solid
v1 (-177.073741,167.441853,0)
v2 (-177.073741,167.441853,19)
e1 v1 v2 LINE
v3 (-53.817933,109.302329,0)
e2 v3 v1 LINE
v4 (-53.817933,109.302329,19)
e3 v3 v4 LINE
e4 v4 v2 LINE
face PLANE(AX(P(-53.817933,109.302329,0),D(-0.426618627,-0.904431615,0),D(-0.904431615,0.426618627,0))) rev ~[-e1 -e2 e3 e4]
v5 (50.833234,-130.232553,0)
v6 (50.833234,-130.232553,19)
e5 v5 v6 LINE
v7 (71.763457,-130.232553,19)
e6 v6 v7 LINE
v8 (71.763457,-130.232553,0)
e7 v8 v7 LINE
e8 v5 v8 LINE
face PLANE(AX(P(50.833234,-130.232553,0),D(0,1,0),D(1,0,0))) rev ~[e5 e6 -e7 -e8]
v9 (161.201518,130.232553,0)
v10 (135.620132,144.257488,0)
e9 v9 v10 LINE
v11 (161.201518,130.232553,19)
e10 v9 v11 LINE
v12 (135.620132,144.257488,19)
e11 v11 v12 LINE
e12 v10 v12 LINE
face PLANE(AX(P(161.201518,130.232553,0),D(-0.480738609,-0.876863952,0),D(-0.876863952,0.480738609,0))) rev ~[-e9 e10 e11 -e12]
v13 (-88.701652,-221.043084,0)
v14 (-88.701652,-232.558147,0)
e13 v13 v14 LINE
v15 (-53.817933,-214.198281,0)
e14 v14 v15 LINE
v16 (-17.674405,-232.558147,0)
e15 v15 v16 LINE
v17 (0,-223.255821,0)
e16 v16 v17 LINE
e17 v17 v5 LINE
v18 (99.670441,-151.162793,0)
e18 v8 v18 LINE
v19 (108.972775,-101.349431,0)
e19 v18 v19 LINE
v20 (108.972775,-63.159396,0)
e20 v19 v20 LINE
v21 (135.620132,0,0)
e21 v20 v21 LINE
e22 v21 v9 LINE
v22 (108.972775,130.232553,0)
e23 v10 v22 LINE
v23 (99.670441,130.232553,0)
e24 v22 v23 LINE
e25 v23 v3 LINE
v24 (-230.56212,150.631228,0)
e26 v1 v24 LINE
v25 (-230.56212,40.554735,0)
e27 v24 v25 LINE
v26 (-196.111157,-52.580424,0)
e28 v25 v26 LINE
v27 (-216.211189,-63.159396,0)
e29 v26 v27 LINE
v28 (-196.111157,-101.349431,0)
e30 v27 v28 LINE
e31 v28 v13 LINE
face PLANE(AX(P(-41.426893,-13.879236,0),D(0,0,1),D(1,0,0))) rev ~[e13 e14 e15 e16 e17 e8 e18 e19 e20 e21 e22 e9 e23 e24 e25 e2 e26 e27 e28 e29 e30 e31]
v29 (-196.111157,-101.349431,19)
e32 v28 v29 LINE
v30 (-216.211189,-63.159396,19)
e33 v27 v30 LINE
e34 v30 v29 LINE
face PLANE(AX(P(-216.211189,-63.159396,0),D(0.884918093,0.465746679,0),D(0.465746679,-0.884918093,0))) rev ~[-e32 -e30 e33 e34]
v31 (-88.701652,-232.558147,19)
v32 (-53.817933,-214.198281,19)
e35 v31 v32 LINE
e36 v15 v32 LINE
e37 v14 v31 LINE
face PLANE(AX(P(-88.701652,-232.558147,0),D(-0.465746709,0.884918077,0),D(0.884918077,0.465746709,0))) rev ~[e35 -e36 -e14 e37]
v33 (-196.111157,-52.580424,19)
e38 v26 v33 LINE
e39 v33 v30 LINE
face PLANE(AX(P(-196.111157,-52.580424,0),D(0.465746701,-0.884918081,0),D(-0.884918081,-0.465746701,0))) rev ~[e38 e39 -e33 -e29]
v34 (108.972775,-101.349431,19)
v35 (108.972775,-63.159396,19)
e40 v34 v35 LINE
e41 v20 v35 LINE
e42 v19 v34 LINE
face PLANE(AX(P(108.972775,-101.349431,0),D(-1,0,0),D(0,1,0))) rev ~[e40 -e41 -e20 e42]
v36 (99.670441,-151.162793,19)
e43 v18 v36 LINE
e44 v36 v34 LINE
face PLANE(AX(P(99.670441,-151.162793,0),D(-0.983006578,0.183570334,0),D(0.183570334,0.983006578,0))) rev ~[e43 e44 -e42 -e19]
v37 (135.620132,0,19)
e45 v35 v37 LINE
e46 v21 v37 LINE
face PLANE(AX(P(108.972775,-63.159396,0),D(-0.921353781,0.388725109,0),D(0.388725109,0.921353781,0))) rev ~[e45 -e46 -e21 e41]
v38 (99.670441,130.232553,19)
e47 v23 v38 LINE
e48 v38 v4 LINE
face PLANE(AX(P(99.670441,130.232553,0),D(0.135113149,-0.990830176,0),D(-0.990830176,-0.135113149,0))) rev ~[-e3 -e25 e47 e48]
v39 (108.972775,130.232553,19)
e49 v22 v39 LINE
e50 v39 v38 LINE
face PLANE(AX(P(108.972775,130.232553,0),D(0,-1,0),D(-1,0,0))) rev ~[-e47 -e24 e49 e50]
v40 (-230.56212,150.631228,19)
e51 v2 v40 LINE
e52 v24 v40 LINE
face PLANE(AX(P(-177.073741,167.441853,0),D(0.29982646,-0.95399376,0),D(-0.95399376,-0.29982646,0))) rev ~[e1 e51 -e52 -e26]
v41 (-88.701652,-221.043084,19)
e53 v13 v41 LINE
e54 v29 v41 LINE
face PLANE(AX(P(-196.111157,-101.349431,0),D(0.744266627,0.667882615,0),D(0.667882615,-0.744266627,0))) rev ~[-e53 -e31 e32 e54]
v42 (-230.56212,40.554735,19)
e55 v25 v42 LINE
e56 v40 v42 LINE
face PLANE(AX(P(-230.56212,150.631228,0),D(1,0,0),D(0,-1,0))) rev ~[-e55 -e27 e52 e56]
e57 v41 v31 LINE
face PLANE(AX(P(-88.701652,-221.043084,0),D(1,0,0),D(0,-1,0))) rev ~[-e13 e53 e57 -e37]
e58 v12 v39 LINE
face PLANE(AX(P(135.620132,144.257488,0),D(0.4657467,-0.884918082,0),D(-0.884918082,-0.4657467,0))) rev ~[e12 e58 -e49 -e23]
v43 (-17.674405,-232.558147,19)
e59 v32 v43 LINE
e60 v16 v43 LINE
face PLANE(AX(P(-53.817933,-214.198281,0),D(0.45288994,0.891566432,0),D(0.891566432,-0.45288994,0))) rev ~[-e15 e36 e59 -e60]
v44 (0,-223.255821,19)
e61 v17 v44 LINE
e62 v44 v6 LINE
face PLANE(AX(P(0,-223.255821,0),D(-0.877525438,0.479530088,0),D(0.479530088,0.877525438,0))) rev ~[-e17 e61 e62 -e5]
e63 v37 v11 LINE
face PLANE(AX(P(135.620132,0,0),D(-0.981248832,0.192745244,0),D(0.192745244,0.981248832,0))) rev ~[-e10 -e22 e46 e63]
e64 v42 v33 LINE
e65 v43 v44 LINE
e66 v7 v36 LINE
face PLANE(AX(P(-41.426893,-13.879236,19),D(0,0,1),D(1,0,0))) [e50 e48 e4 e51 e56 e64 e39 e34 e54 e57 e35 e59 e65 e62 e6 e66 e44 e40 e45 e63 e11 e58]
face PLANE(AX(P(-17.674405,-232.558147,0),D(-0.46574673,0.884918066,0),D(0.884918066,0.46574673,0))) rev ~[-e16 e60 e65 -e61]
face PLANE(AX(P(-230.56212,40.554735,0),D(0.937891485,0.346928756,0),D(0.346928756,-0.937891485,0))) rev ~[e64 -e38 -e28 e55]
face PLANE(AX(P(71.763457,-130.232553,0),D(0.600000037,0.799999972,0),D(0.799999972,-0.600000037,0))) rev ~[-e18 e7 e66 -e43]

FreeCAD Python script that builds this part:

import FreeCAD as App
import Part
import Sketcher


def add_polygon(sketch, points):
    """Adds a closed chain of lines whose ends are joined by coincident constraints."""
    first, n = sketch.GeometryCount, len(points)
    for a, b in zip(points, points[1:] + points[:1]):
        sketch.addGeometry(Part.LineSegment(App.Vector(*a, 0), App.Vector(*b, 0)), False)
    for i in range(n):
        sketch.addConstraint(Sketcher.Constraint("Coincident", first + i, 2, first + (i + 1) % n, 1))

doc = App.newDocument("Part")
params = doc.addObject("Spreadsheet::Sheet", "Params")
for row, (alias, value) in enumerate([
    ("pad1_length", "19 mm"),
], start=1):
    params.set(f"A{row}", alias)
    params.set(f"B{row}", "=" + value)
    params.setAlias(f"B{row}", alias)

body = doc.addObject("PartDesign::Body", "Body")

sketch1 = doc.addObject("Sketcher::SketchObject", "Sketch")
body.addObject(sketch1)
sketch1.AttachmentSupport = (doc.XY_Plane, [""])
sketch1.MapMode = "FlatFace"
add_polygon(sketch1, [(-53.817933, 109.302329), (-177.073741, 167.441853), (-230.56212, 150.631228), (-230.56212, 40.554735), (-196.111157, -52.580424), (-216.211189, -63.159396), (-196.111157, -101.349431), (-88.701652, -221.043084), (-88.701652, -232.558147), (-53.817933, -214.198281), (-17.674405, -232.558147), (0, -223.255821), (50.833234, -130.232553), (71.763457, -130.232553), (99.670441, -151.162793), (108.972775, -101.349431), (108.972775, -63.159396), (135.620132, 0), (161.201518, 130.232553), (135.620132, 144.257488), (108.972775, 130.232553), (99.670441, 130.232553)])
sketch1.addConstraint([
    Sketcher.Constraint("Vertical", 2),
    Sketcher.Constraint("Vertical", 7),
    Sketcher.Constraint("Horizontal", 12),
    Sketcher.Constraint("Vertical", 15),
    Sketcher.Constraint("Horizontal", 20),
    Sketcher.Constraint("PointOnObject", 10, 2, -2),
    Sketcher.Constraint("PointOnObject", 16, 2, -1),
    Sketcher.Constraint("DistanceX", 11, 2, 16, 2, 84.786898),
    Sketcher.Constraint("DistanceY", 21, 2, 1, 2, 41.328899),
    Sketcher.Constraint("Distance", 1, 56.06785),
    Sketcher.Constraint("Distance", 8, 39.420281),
    Sketcher.Constraint("Distance", 10, 19.972928),
    Sketcher.Constraint("Distance", 11, 106.006349),
    Sketcher.Constraint("Distance", 13, 34.883731),
    Sketcher.Constraint("Distance", 17, 132.721231),
    Sketcher.Constraint("Distance", 21, 154.908861),
    Sketcher.Constraint("DistanceX", 12, 1, 12, 2, 20.930223),
    Sketcher.Constraint("DistanceX", 20, 2, 20, 1, 9.302334),
    Sketcher.Constraint("DistanceY", 2, 2, 2, 1, 110.076493),
    Sketcher.Constraint("DistanceY", 7, 2, 7, 1, 11.515063),
    Sketcher.Constraint("DistanceY", 15, 1, 15, 2, 38.190035),
    Sketcher.Constraint("DistanceX", 0, 2, -1, 1, 177.073741),
    Sketcher.Constraint("DistanceX", 1, 2, -1, 1, 230.56212),
    Sketcher.Constraint("DistanceY", -1, 1, 1, 2, 150.631228),
    Sketcher.Constraint("DistanceX", 4, 2, -1, 1, 216.211189),
    Sketcher.Constraint("DistanceY", 5, 2, -1, 1, 101.349431),
    Sketcher.Constraint("DistanceX", 6, 2, -1, 1, 88.701652),
    Sketcher.Constraint("DistanceY", 8, 2, -1, 1, 214.198281),
    Sketcher.Constraint("DistanceY", 10, 2, -1, 1, 223.255821),
    Sketcher.Constraint("DistanceX", -1, 1, 13, 2, 99.670441),
    Sketcher.Constraint("DistanceY", 14, 2, -1, 1, 101.349431),
    Sketcher.Constraint("DistanceX", -1, 1, 17, 2, 161.201518),
    Sketcher.Constraint("DistanceY", -1, 1, 18, 2, 144.257488),
    Sketcher.Constraint("DistanceX", -1, 1, 20, 2, 99.670441),
    Sketcher.Constraint("DistanceY", 3, 2, 2, 2, 93.135159),
    Sketcher.Constraint("DistanceX", 4, 2, 3, 2, 20.100032),
    Sketcher.Constraint("DistanceY", 4, 2, 2, 2, 103.714131),
    Sketcher.Constraint("DistanceX", 4, 2, 5, 2, 20.100032),
    Sketcher.Constraint("DistanceY", 6, 2, 3, 2, 168.46266),
    Sketcher.Constraint("DistanceX", 5, 2, 9, 2, 178.436752),
    Sketcher.Constraint("DistanceY", 10, 2, 11, 2, 93.023268),
    Sketcher.Constraint("DistanceX", 11, 2, 14, 2, 58.139541),
    Sketcher.Constraint("DistanceY", 15, 2, 19, 2, 193.391949),
    Sketcher.Constraint("DistanceX", 20, 2, 18, 2, 35.949691),
])
pad1 = doc.addObject("PartDesign::Pad", "Pad")
body.addObject(pad1)
pad1.Profile = sketch1
pad1.setExpression("Length", "Params.pad1_length")

doc.recompute()
